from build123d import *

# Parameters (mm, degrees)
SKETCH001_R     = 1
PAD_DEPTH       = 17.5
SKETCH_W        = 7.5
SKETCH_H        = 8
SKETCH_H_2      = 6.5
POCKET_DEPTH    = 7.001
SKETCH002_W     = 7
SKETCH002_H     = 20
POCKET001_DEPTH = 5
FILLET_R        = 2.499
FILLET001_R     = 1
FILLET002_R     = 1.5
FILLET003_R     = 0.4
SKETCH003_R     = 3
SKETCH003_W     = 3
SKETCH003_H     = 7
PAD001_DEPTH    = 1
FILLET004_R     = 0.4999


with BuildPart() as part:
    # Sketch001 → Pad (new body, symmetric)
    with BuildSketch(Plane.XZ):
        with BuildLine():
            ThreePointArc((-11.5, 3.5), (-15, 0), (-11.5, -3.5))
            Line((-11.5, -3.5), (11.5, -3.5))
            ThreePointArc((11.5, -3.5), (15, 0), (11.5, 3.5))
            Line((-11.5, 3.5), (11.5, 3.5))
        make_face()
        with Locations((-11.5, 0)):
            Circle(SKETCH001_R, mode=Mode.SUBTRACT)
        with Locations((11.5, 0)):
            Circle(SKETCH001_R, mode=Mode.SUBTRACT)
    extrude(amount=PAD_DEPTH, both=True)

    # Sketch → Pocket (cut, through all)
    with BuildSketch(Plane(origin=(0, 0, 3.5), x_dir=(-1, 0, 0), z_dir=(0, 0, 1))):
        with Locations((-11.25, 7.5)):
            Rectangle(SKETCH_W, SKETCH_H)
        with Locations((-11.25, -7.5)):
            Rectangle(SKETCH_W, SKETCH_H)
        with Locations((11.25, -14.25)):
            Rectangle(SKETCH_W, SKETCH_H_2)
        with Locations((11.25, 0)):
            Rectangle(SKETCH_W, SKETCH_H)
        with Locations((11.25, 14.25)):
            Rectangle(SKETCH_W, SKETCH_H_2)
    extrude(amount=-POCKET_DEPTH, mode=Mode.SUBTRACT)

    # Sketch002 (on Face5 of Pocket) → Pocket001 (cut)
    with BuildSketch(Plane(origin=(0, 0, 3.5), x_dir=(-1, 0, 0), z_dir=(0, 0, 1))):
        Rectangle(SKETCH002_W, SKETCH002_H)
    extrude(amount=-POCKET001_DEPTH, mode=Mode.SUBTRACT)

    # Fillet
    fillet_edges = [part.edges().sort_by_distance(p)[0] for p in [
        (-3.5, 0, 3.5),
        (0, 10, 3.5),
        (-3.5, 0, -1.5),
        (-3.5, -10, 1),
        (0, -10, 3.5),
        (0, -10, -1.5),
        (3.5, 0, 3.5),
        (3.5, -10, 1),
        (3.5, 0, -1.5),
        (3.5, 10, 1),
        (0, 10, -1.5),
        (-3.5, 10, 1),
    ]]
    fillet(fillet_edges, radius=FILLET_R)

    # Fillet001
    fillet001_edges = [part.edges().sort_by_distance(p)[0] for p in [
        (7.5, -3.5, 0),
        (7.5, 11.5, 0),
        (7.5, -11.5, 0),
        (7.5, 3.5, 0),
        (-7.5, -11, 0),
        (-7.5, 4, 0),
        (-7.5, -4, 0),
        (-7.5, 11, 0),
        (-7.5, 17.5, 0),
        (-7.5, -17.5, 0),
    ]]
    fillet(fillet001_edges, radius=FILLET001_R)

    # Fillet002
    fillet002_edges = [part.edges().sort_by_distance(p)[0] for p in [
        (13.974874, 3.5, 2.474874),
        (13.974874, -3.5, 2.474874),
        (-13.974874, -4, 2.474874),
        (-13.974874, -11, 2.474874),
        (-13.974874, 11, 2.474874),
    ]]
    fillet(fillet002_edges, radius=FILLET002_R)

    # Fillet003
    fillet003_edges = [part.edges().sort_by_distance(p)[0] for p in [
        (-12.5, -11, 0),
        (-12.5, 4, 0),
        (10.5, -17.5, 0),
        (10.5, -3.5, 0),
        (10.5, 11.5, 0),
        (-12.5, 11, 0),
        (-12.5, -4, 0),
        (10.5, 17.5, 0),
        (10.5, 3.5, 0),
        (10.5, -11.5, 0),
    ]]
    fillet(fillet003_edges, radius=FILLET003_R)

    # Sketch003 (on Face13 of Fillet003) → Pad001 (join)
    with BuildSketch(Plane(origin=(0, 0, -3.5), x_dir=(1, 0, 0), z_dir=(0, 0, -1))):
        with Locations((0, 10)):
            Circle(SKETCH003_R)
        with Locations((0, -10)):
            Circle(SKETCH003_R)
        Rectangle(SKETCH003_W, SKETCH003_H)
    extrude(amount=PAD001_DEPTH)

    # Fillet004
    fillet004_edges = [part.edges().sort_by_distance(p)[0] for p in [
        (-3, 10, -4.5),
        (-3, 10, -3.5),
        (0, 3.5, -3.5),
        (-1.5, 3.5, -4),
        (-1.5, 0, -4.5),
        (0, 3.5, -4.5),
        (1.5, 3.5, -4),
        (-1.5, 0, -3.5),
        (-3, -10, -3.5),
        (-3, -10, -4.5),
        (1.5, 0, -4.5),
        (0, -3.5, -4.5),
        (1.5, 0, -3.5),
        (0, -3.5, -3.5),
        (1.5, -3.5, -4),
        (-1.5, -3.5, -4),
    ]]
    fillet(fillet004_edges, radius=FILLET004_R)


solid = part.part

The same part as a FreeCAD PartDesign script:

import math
import FreeCAD as App
import Part
import Sketcher


def edges_at(feature, points):
    """Names of the edges that pass closest to the given points."""
    edges = feature.Shape.Edges
    near = lambda p: min(range(len(edges)), key=lambda i: edges[i].distToShape(Part.Vertex(*p))[0])
    return sorted({f"Edge{near(p) + 1}" for p in points})


def add_polygon(sketch, points):
    """Adds a closed chain of lines whose ends are joined by coincident constraints."""
    first, n = sketch.GeometryCount, len(points)
    for a, b in zip(points, points[1:] + points[:1]):
        sketch.addGeometry(Part.LineSegment(App.Vector(*a, 0), App.Vector(*b, 0)), False)
    for i in range(n):
        sketch.addConstraint(Sketcher.Constraint("Coincident", first + i, 2, first + (i + 1) % n, 1))

doc = App.newDocument("Part")
body = doc.addObject("PartDesign::Body", "Body")

# Sketch on XZ plane
sketch1 = body.newObject("Sketcher::SketchObject", "Sketch")
sketch1.AttachmentSupport = (doc.getObject("XZ_Plane"), [""])
sketch1.MapMode = "FlatFace"
sketch1.addGeometry([
    Part.ArcOfCircle(Part.Circle(App.Vector(-11.5, 0, 0), App.Vector(0, 0, 1), 3.5), math.radians(90), math.radians(270)),  # 0
    Part.LineSegment(App.Vector(-11.5, -3.5, 0), App.Vector(11.5, -3.5, 0)),  # 1
    Part.ArcOfCircle(Part.Circle(App.Vector(11.5, 0, 0), App.Vector(0, 0, 1), 3.5), math.radians(-90), math.radians(90)),  # 2
    Part.LineSegment(App.Vector(11.5, 3.5, 0), App.Vector(-11.5, 3.5, 0)),  # 3
    Part.Circle(App.Vector(-11.5, 0, 0), App.Vector(0, 0, 1), 1),  # 4
    Part.Circle(App.Vector(11.5, 0, 0), App.Vector(0, 0, 1), 1),  # 5
], False)
sketch1.addConstraint([
    Sketcher.Constraint("Tangent", 0, 2, 1, 1),
    Sketcher.Constraint("Tangent", 1, 2, 2, 1),
    Sketcher.Constraint("Tangent", 2, 2, 3, 1),
    Sketcher.Constraint("Tangent", 3, 2, 0, 1),
    Sketcher.Constraint("Horizontal", 1),
    Sketcher.Constraint("Horizontal", 3),
    Sketcher.Constraint("Coincident", 4, 3, 0, 3),
    Sketcher.Constraint("Coincident", 5, 3, 2, 3),
    Sketcher.Constraint("Equal", 4, 5),
    Sketcher.Constraint("Symmetric", 0, 3, 2, 3, -1, 1),
    Sketcher.Constraint("Diameter", 4, 2.0),
    Sketcher.Constraint("Radius", 0, 3.5),
    Sketcher.Constraint("DistanceX", 1, 1, 1, 2, 23.0),
])
pad1 = body.newObject("PartDesign::Pad", "Pad")
pad1.Profile = sketch1
pad1.Length = 35
pad1.Midplane = True

# Sketch on XY plane
sketch2 = body.newObject("Sketcher::SketchObject", "Sketch001")
sketch2.AttachmentSupport = (doc.getObject("XY_Plane"), [""])
sketch2.MapMode = "FlatFace"
sketch2.AttachmentOffset = App.Placement(App.Vector(0, 0, 3.5), App.Rotation())
add_polygon(sketch2, [(15, -11.5), (15, -3.5), (7.5, -3.5), (7.5, -11.5)])  # lines 0-3
add_polygon(sketch2, [(15, 3.5), (15, 11.5), (7.5, 11.5), (7.5, 3.5)])  # lines 4-7
add_polygon(sketch2, [(-7.5, 11), (-7.5, 17.5), (-15, 17.5), (-15, 11)])  # lines 8-11
add_polygon(sketch2, [(-7.5, -4), (-7.5, 4), (-15, 4), (-15, -4)])  # lines 12-15
add_polygon(sketch2, [(-7.5, -17.5), (-7.5, -11), (-15, -11), (-15, -17.5)])  # lines 16-19
sketch2.addConstraint([
    Sketcher.Constraint("Vertical", 0),
    Sketcher.Constraint("Horizontal", 1),
    Sketcher.Constraint("Vertical", 2),
    Sketcher.Constraint("Horizontal", 3),
    Sketcher.Constraint("Vertical", 4),
    Sketcher.Constraint("Horizontal", 5),
    Sketcher.Constraint("Vertical", 6),
    Sketcher.Constraint("Horizontal", 7),
    Sketcher.Constraint("Vertical", 8),
    Sketcher.Constraint("Horizontal", 9),
    Sketcher.Constraint("Vertical", 10),
    Sketcher.Constraint("Horizontal", 11),
    Sketcher.Constraint("Vertical", 12),
    Sketcher.Constraint("Horizontal", 13),
    Sketcher.Constraint("Vertical", 14),
    Sketcher.Constraint("Horizontal", 15),
    Sketcher.Constraint("Vertical", 16),
    Sketcher.Constraint("Horizontal", 17),
    Sketcher.Constraint("Vertical", 18),
    Sketcher.Constraint("Horizontal", 19),
    Sketcher.Constraint("Symmetric", 3, 2, 4, 2, -1),
    Sketcher.Constraint("Symmetric", 1, 2, 6, 2, -1),
    Sketcher.Constraint("Symmetric", 11, 2, 16, 2, -1),
    Sketcher.Constraint("Symmetric", 9, 2, 18, 2, -1),
    Sketcher.Constraint("Vertical", 11, 2, 12, 2),
    Sketcher.Constraint("Vertical", 10, 2, 13, 2),
    Sketcher.Constraint("Equal", 7, 9),
    Sketcher.Constraint("Equal", 6, 12),
    Sketcher.Constraint("DistanceY", 0, 1, 0, 2, 8.0),
    Sketcher.Constraint("DistanceX", 1, 2, 1, 1, 7.5),
    Sketcher.Constraint("DistanceY", 8, 1, 8, 2, 6.5),
    Sketcher.Constraint("DistanceX", -1, 1, 0, 2, 15.0),
    Sketcher.Constraint("DistanceX", 9, 2, -1, 1, 15.0),
    Sketcher.Constraint("DistanceY", -1, 1, 10, 2, 11.0),
    Sketcher.Constraint("DistanceY", -1, 1, 12, 2, 4.0),
    Sketcher.Constraint("DistanceY", 0, 2, 4, 2, 15.0),
])
pocket1 = body.newObject("PartDesign::Pocket", "Pocket")
pocket1.Profile = sketch2
pocket1.Type = "ThroughAll"

# Sketch on XY plane
sketch3 = body.newObject("Sketcher::SketchObject", "Sketch002")
sketch3.AttachmentSupport = (doc.getObject("XY_Plane"), [""])
sketch3.MapMode = "FlatFace"
sketch3.AttachmentOffset = App.Placement(App.Vector(0, 0, 3.5), App.Rotation())
add_polygon(sketch3, [(3.5, -10), (3.5, 10), (-3.5, 10), (-3.5, -10)])  # lines 0-3
sketch3.addConstraint([
    Sketcher.Constraint("Vertical", 0),
    Sketcher.Constraint("Horizontal", 1),
    Sketcher.Constraint("Vertical", 2),
    Sketcher.Constraint("Horizontal", 3),
    Sketcher.Constraint("Symmetric", 0, 2, 2, 2, -1, 1),
    Sketcher.Constraint("DistanceX", 1, 2, 1, 1, 7.0),
    Sketcher.Constraint("DistanceY", 0, 1, 0, 2, 20.0),
])
pocket2 = body.newObject("PartDesign::Pocket", "Pocket001")
pocket2.Profile = sketch3
pocket2.Length = 5
doc.recompute()

fillet = body.newObject("PartDesign::Fillet", "Fillet")
fillet.Base = (pocket2, edges_at(pocket2, [
    (-3.5, 0, 3.5),
    (0, 10, 3.5),
    (-3.5, 0, -1.5),
    (-3.5, -10, 1),
    (0, -10, 3.5),
    (0, -10, -1.5),
    (3.5, 0, 3.5),
    (3.5, -10, 1),
    (3.5, 0, -1.5),
    (3.5, 10, 1),
    (0, 10, -1.5),
    (-3.5, 10, 1),
]))
fillet.Radius = 2.499
doc.recompute()

fillet2 = body.newObject("PartDesign::Fillet", "Fillet001")
fillet2.Base = (fillet, edges_at(fillet, [
    (7.5, -3.5, 0),
    (7.5, 11.5, 0),
    (7.5, -11.5, 0),
    (7.5, 3.5, 0),
    (-7.5, -11, 0),
    (-7.5, 4, 0),
    (-7.5, -4, 0),
    (-7.5, 11, 0),
    (-7.5, 17.5, 0),
    (-7.5, -17.5, 0),
]))
fillet2.Radius = 1
doc.recompute()

fillet3 = body.newObject("PartDesign::Fillet", "Fillet002")
fillet3.Base = (fillet2, edges_at(fillet2, [
    (15, 3.5, 0),
    (15, -3.5, 0),
    (-15, -4, 0),
    (-15, -11, 0),
    (-15, 11, 0),
]))
fillet3.Radius = 1.5
doc.recompute()

fillet4 = body.newObject("PartDesign::Fillet", "Fillet003")
fillet4.Base = (fillet3, edges_at(fillet3, [
    (-12.5, -11, 0),
    (-12.5, 4, 0),
    (10.5, -17.5, 0),
    (10.5, -3.5, 0),
    (10.5, 11.5, 0),
    (-12.5, 11, 0),
    (-12.5, -4, 0),
    (10.5, 17.5, 0),
    (10.5, 3.5, 0),
    (10.5, -11.5, 0),
]))
fillet4.Radius = 0.4

# Sketch on XY plane
sketch4 = body.newObject("Sketcher::SketchObject", "Sketch003")
sketch4.AttachmentSupport = (doc.getObject("XY_Plane"), [""])
sketch4.MapMode = "FlatFace"
sketch4.AttachmentOffset = App.Placement(App.Vector(0, 0, -3.5), App.Rotation())
sketch4.addGeometry(Part.Circle(App.Vector(0, -10, 0), App.Vector(0, 0, 1), 3), False)  # 0
sketch4.addGeometry(Part.Circle(App.Vector(0, 10, 0), App.Vector(0, 0, 1), 3), False)  # 1
add_polygon(sketch4, [(-1.5, -3.5), (-1.5, 3.5), (1.5, 3.5), (1.5, -3.5)])  # lines 2-5
sketch4.addConstraint([
    Sketcher.Constraint("Vertical", 2),
    Sketcher.Constraint("Horizontal", 3),
    Sketcher.Constraint("Vertical", 4),
    Sketcher.Constraint("Horizontal", 5),
    Sketcher.Constraint("Equal", 0, 1),
    Sketcher.Constraint("Symmetric", 0, 3, 1, 3, -1, 1),
    Sketcher.Constraint("Symmetric", 2, 2, 4, 2, -1, 1),
    Sketcher.Constraint("PointOnObject", 0, 3, -2),
    Sketcher.Constraint("Diameter", 0, 6.0),
    Sketcher.Constraint("DistanceX", 3, 1, 3, 2, 3.0),
    Sketcher.Constraint("DistanceY", 2, 1, 2, 2, 7.0),
    Sketcher.Constraint("DistanceY", 0, 3, -1, 1, 10.0),
])
pad2 = body.newObject("PartDesign::Pad", "Pad001")
pad2.Profile = sketch4
pad2.Length = 1
pad2.Reversed = True
doc.recompute()

fillet5 = body.newObject("PartDesign::Fillet", "Fillet004")
fillet5.Base = (pad2, edges_at(pad2, [
    (-3, 10, -4.5),
    (-3, 10, -3.5),
    (0, 3.5, -3.5),
    (-1.5, 3.5, -4),
    (-1.5, 0, -4.5),
    (0, 3.5, -4.5),
    (1.5, 3.5, -4),
    (-1.5, 0, -3.5),
    (-3, -10, -3.5),
    (-3, -10, -4.5),
    (1.5, 0, -4.5),
    (0, -3.5, -4.5),
    (1.5, 0, -3.5),
    (0, -3.5, -3.5),
    (1.5, -3.5, -4),
    (-1.5, -3.5, -4),
]))
fillet5.Radius = 0.4999

doc.recompute()
